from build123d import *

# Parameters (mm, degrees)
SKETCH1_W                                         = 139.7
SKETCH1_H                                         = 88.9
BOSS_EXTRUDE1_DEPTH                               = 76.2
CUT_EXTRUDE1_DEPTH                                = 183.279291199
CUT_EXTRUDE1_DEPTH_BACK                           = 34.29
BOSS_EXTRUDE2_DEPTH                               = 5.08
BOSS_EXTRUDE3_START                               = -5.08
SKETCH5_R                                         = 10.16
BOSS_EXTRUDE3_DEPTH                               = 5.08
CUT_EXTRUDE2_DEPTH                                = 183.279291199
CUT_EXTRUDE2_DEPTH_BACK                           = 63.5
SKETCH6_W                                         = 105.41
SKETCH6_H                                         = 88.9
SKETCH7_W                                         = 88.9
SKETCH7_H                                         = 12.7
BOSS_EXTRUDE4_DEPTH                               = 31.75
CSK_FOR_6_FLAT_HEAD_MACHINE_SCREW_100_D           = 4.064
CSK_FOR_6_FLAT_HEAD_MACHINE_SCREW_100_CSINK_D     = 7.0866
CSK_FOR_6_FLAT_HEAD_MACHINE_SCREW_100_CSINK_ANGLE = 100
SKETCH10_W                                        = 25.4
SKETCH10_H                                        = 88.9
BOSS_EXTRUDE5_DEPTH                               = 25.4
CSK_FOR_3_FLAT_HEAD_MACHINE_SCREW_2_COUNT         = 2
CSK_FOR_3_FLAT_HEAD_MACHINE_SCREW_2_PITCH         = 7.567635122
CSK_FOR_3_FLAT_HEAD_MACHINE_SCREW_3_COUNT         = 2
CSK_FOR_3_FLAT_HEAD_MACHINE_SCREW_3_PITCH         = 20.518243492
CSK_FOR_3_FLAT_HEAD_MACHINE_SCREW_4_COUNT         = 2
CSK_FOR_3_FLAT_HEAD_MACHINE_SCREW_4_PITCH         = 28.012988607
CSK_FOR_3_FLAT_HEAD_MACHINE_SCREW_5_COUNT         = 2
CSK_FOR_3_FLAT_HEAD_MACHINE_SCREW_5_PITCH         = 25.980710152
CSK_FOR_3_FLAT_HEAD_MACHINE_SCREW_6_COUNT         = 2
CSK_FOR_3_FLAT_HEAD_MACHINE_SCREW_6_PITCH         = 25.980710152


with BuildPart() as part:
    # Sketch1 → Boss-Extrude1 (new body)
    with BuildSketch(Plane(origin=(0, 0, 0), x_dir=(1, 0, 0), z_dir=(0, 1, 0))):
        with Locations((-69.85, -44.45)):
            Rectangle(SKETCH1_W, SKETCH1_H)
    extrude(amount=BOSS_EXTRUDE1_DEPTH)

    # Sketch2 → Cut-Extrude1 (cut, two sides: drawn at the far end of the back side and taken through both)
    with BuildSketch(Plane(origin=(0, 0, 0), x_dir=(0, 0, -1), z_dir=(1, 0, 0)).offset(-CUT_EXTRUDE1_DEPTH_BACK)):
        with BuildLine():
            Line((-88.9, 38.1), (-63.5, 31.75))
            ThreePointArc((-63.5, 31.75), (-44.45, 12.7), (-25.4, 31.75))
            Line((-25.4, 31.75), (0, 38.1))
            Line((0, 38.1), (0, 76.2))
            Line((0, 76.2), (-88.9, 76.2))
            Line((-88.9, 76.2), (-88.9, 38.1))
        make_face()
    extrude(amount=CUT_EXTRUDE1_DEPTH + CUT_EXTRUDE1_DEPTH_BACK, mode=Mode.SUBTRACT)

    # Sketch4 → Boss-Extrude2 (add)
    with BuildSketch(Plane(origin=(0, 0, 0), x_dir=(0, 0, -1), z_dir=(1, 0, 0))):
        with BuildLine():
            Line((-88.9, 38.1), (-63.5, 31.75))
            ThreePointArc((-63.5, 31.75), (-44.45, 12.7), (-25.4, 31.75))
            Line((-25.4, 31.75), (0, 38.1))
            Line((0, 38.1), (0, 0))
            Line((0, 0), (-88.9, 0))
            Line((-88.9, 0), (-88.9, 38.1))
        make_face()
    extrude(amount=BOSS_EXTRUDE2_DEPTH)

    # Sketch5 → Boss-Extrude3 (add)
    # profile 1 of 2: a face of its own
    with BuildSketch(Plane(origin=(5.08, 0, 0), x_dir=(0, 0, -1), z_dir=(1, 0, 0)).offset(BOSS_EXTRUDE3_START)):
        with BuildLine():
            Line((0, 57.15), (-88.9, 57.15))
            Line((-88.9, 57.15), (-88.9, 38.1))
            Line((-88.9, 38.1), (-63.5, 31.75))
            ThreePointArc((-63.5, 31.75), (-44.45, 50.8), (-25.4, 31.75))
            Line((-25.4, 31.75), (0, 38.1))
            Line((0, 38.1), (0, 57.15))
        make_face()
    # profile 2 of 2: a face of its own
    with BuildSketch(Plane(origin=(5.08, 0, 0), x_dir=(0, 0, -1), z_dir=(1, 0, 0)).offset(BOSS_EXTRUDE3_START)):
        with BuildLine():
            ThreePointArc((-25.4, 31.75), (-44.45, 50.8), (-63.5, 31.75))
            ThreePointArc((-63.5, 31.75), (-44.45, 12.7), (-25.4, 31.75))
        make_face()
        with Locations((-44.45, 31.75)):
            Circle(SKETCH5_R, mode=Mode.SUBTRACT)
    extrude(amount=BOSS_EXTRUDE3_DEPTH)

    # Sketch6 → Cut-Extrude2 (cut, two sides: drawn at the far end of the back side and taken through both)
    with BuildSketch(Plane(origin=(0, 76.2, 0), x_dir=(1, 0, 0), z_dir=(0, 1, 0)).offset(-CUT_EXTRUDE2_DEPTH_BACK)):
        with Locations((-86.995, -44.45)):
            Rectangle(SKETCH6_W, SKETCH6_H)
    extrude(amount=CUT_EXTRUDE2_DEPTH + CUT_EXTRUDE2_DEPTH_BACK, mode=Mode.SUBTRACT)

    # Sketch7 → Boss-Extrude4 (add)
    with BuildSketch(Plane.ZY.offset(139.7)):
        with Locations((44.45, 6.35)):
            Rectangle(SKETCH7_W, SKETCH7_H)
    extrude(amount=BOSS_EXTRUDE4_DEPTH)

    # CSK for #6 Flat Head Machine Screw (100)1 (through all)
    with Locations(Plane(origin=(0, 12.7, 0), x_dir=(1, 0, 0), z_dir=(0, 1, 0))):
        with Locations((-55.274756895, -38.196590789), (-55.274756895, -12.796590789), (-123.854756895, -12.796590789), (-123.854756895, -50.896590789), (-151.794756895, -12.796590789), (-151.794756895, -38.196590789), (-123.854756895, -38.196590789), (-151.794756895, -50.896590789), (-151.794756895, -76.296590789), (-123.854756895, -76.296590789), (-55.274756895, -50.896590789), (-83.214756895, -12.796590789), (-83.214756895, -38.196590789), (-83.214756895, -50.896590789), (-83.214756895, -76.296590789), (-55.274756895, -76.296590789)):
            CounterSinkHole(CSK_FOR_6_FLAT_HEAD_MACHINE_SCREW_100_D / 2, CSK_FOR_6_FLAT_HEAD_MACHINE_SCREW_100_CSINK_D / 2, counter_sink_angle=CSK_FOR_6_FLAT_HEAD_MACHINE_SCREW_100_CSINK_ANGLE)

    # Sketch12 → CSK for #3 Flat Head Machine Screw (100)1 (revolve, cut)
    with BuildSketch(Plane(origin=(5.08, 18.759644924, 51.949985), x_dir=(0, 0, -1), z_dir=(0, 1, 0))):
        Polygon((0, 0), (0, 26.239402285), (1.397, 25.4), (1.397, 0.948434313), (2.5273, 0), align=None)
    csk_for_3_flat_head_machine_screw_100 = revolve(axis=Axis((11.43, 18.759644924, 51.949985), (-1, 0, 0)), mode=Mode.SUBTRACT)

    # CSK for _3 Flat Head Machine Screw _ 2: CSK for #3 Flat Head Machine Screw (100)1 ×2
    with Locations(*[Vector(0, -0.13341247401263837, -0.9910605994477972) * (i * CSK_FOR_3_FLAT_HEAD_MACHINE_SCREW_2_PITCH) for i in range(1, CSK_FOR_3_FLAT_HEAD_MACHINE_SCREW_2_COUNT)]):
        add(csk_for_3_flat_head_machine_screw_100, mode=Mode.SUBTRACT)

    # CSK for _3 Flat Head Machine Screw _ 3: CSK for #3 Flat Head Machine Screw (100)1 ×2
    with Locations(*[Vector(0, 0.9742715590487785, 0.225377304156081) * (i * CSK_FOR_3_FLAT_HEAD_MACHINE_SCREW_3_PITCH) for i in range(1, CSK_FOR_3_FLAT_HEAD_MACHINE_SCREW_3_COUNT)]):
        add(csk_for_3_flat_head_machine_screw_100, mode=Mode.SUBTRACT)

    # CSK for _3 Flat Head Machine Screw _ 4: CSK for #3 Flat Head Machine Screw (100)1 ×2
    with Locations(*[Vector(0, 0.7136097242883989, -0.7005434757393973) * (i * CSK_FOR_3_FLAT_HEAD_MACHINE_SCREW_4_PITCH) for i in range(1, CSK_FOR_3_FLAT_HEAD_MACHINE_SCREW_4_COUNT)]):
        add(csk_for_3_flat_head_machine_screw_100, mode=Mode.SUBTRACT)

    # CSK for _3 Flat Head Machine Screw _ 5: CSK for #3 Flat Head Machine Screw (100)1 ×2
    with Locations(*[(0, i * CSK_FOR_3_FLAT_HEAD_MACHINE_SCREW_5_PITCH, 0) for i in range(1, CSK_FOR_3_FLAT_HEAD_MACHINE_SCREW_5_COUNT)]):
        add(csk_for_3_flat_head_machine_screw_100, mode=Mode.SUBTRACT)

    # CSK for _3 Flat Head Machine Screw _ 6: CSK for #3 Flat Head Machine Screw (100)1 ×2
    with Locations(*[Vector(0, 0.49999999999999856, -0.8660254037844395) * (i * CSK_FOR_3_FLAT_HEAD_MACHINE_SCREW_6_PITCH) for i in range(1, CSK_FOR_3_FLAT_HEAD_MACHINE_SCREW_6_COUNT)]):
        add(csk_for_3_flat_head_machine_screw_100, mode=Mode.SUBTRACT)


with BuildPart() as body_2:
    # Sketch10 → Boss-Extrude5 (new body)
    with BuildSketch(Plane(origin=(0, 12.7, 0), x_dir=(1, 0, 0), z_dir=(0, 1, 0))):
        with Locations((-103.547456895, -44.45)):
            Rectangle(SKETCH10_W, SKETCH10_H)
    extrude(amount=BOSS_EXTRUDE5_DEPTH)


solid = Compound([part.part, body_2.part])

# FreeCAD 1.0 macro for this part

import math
import FreeCAD as App
import Part
import Sketcher
from FreeCAD import Vector
Q = App.Units.Quantity

doc = App.newDocument("Part")
params = doc.addObject("Spreadsheet::Sheet", "Params")
for row, (alias, value) in enumerate([
    ("sketch1_width", "5.5 in"),
    ("sketch1_height", "3.5 in"),
    ("pad1_length", "3 in"),
    ("sketch2_radius", "0.75 in"),
    ("sketch2_width", "1.5 in"),
    ("sketch2_height", "3.5 in"),
    ("pocket1_length", "183.279291 mm"),
    ("pocket1_length2", "1.35 in"),
    ("sketch3_radius", "0.75 in"),
    ("sketch3_width", "1.5 in"),
    ("sketch3_height", "3.5 in"),
    ("pad2_length", "0.2 in"),
    ("sketch4_diameter", "0.8 in"),
    ("sketch4_radius", "0.75 in"),
    ("sketch4_height", "3.5 in"),
    ("sketch4_width", "0.75 in"),
    ("pad3_length", "0.2 in"),
    ("sketch5_height", "3.5 in"),
    ("sketch5_width", "4.15 in"),
    ("pocket2_length", "183.279291 mm"),
    ("pocket2_length2", "2.5 in"),
    ("sketch6_width", "0.5 in"),
    ("sketch6_height", "3.5 in"),
    ("pad4_length", "1.25 in"),
    ("sketch7_diameter", "0.16 in"),
    ("hole_diameter", "0.16 in"),
    ("hole_csink_diameter", "0.279 in"),
    ("groove_angle", "360 deg"),
    ("linearpattern_pitch", "7.567635 mm"),
    ("linearpattern2_pitch", "20.518243 mm"),
    ("linearpattern3_pitch", "28.012989 mm"),
    ("linearpattern4_pitch", "25.98071 mm"),
    ("linearpattern5_pitch", "25.98071 mm"),
    ("sketch9_width", "1 in"),
    ("sketch9_height", "3.5 in"),
    ("pad5_length", "1 in"),
], start=1):
    params.set(f"A{row}", alias)
    params.set(f"B{row}", "=" + value)
    params.setAlias(f"B{row}", alias)

body = doc.addObject("PartDesign::Body", "Body")

sketch1 = doc.addObject("Sketcher::SketchObject", "Sketch")
body.addObject(sketch1)
sketch1.AttachmentSupport = (doc.XZ_Plane, [""])
sketch1.MapMode = "FlatFace"
sketch1.addGeometry([
    Part.LineSegment(Vector(-139.7, 0, 0), Vector(-139.7, 88.9, 0)),
    Part.LineSegment(Vector(-139.7, 88.9, 0), Vector(0, 88.9, 0)),
    Part.LineSegment(Vector(0, 88.9, 0), Vector(0, 0, 0)),
    Part.LineSegment(Vector(0, 0, 0), Vector(-139.7, 0, 0)),
], False)
sketch1.addConstraint([
    Sketcher.Constraint("Coincident", 0, 2, 1, 1),
    Sketcher.Constraint("Coincident", 1, 2, 2, 1),
    Sketcher.Constraint("Coincident", 2, 2, 3, 1),
    Sketcher.Constraint("Coincident", 3, 2, 0, 1),
    Sketcher.Constraint("Vertical", 0),
    Sketcher.Constraint("Horizontal", 1),
    Sketcher.Constraint("Vertical", 2),
    Sketcher.Constraint("Horizontal", 3),
    Sketcher.Constraint("Coincident", 2, 2, -1, 1),
    Sketcher.Constraint("DistanceX", 1, 1, 1, 2, Q("5.5 in")),
    Sketcher.Constraint("DistanceY", 0, 1, 0, 2, Q("3.5 in")),
])
sketch1.setExpression("Constraints[9]", "Params.sketch1_width")
sketch1.setExpression("Constraints[10]", "Params.sketch1_height")
pad1 = doc.addObject("PartDesign::Pad", "Pad")
body.addObject(pad1)
pad1.Profile = sketch1
pad1.setExpression("Length", "Params.pad1_length")
pad1.Reversed = True

sketch2 = doc.addObject("Sketcher::SketchObject", "Sketch001")
body.addObject(sketch2)
sketch2.AttachmentSupport = (doc.YZ_Plane, [""])
sketch2.MapMode = "FlatFace"
sketch2.addGeometry([
    Part.LineSegment(Vector(38.1, 88.9, 0), Vector(31.75, 63.5, 0)),
    Part.ArcOfCircle(Part.Circle(Vector(31.75, 44.45, 0), Vector(0, 0, 1), 19.05), math.radians(90), math.radians(270)),
    Part.LineSegment(Vector(31.75, 25.4, 0), Vector(38.1, 0, 0)),
    Part.LineSegment(Vector(38.1, 0, 0), Vector(76.2, 0, 0)),
    Part.LineSegment(Vector(76.2, 0, 0), Vector(76.2, 88.9, 0)),
    Part.LineSegment(Vector(76.2, 88.9, 0), Vector(38.1, 88.9, 0)),
], False)
sketch2.addConstraint([
    Sketcher.Constraint("Coincident", 0, 2, 1, 1),
    Sketcher.Constraint("Coincident", 1, 2, 2, 1),
    Sketcher.Constraint("Coincident", 2, 2, 3, 1),
    Sketcher.Constraint("Coincident", 3, 2, 4, 1),
    Sketcher.Constraint("Coincident", 4, 2, 5, 1),
    Sketcher.Constraint("Coincident", 5, 2, 0, 1),
    Sketcher.Constraint("Horizontal", 3),
    Sketcher.Constraint("Vertical", 4),
    Sketcher.Constraint("Horizontal", 5),
    Sketcher.Constraint("PointOnObject", 2, 2, -1),
    Sketcher.Constraint("Vertical", 1, 3, 0, 2),
    Sketcher.Constraint("Vertical", 0, 2, 1, 2),
    Sketcher.Constraint("Vertical", 2, 2, 5, 2),
    Sketcher.Constraint("Equal", 0, 2),
    Sketcher.Constraint("Radius", 1, Q("0.75 in")),
    Sketcher.Constraint("DistanceX", 3, 1, 3, 2, Q("1.5 in")),
    Sketcher.Constraint("DistanceY", 4, 1, 4, 2, Q("3.5 in")),
    Sketcher.Constraint("DistanceX", -1, 1, 3, 2, Q("3 in")),
    Sketcher.Constraint("DistanceX", -1, 1, 1, 3, Q("1.25 in")),
])
sketch2.setExpression("Constraints[14]", "Params.sketch2_radius")
sketch2.setExpression("Constraints[15]", "Params.sketch2_width")
sketch2.setExpression("Constraints[16]", "Params.sketch2_height")
pocket1 = doc.addObject("PartDesign::Pocket", "Pocket")
body.addObject(pocket1)
pocket1.Profile = sketch2
pocket1.Type = "TwoLengths"
pocket1.setExpression("Length", "Params.pocket1_length")
pocket1.setExpression("Length2", "Params.pocket1_length2")
pocket1.Reversed = True

sketch3 = doc.addObject("Sketcher::SketchObject", "Sketch002")
body.addObject(sketch3)
sketch3.AttachmentSupport = (doc.YZ_Plane, [""])
sketch3.MapMode = "FlatFace"
sketch3.addGeometry([
    Part.LineSegment(Vector(31.75, 63.5, 0), Vector(38.1, 88.9, 0)),
    Part.LineSegment(Vector(38.1, 88.9, 0), Vector(0, 88.9, 0)),
    Part.LineSegment(Vector(0, 88.9, 0), Vector(0, 0, 0)),
    Part.LineSegment(Vector(0, 0, 0), Vector(38.1, 0, 0)),
    Part.LineSegment(Vector(38.1, 0, 0), Vector(31.75, 25.4, 0)),
    Part.ArcOfCircle(Part.Circle(Vector(31.75, 44.45, 0), Vector(0, 0, 1), 19.05), math.radians(90), math.radians(270)),
], False)
sketch3.addConstraint([
    Sketcher.Constraint("Coincident", 0, 2, 1, 1),
    Sketcher.Constraint("Coincident", 1, 2, 2, 1),
    Sketcher.Constraint("Coincident", 2, 2, 3, 1),
    Sketcher.Constraint("Coincident", 3, 2, 4, 1),
    Sketcher.Constraint("Coincident", 4, 2, 5, 2),
    Sketcher.Constraint("Coincident", 5, 1, 0, 1),
    Sketcher.Constraint("Horizontal", 1),
    Sketcher.Constraint("Vertical", 2),
    Sketcher.Constraint("Horizontal", 3),
    Sketcher.Constraint("Coincident", 2, 2, -1, 1),
    Sketcher.Constraint("Vertical", 0, 2, 3, 2),
    Sketcher.Constraint("Vertical", 5, 3, 4, 2),
    Sketcher.Constraint("Vertical", 4, 2, 5, 1),
    Sketcher.Constraint("Equal", 0, 4),
    Sketcher.Constraint("Radius", 5, Q("0.75 in")),
    Sketcher.Constraint("DistanceX", 1, 2, 1, 1, Q("1.5 in")),
    Sketcher.Constraint("DistanceY", 2, 2, 2, 1, Q("3.5 in")),
    Sketcher.Constraint("DistanceX", -1, 1, 5, 3, Q("1.25 in")),
])
sketch3.setExpression("Constraints[14]", "Params.sketch3_radius")
sketch3.setExpression("Constraints[15]", "Params.sketch3_width")
sketch3.setExpression("Constraints[16]", "Params.sketch3_height")
pad2 = doc.addObject("PartDesign::Pad", "Pad001")
body.addObject(pad2)
pad2.Profile = sketch3
pad2.setExpression("Length", "Params.pad2_length")

sketch4 = doc.addObject("Sketcher::SketchObject", "Sketch003")
body.addObject(sketch4)
sketch4.AttachmentSupport = (doc.YZ_Plane, [""])
sketch4.MapMode = "FlatFace"
sketch4.addGeometry([
    Part.LineSegment(Vector(57.15, 0, 0), Vector(57.15, 88.9, 0)),
    Part.LineSegment(Vector(57.15, 88.9, 0), Vector(38.1, 88.9, 0)),
    Part.LineSegment(Vector(38.1, 88.9, 0), Vector(31.75, 63.5, 0)),
    Part.ArcOfCircle(Part.Circle(Vector(31.75, 44.45, 0), Vector(0, 0, 1), 19.05), math.radians(90), math.radians(270)),
    Part.LineSegment(Vector(31.75, 25.4, 0), Vector(38.1, 0, 0)),
    Part.LineSegment(Vector(38.1, 0, 0), Vector(57.15, 0, 0)),
    Part.Circle(Vector(31.75, 44.45, 0), Vector(0, 0, 1), 10.16),
], False)
sketch4.addConstraint([
    Sketcher.Constraint("Coincident", 0, 2, 1, 1),
    Sketcher.Constraint("Coincident", 1, 2, 2, 1),
    Sketcher.Constraint("Coincident", 2, 2, 3, 1),
    Sketcher.Constraint("Coincident", 3, 2, 4, 1),
    Sketcher.Constraint("Coincident", 4, 2, 5, 1),
    Sketcher.Constraint("Coincident", 5, 2, 0, 1),
    Sketcher.Constraint("Vertical", 0),
    Sketcher.Constraint("Horizontal", 1),
    Sketcher.Constraint("Horizontal", 5),
    Sketcher.Constraint("Coincident", 6, 3, 3, 3),
    Sketcher.Constraint("PointOnObject", 4, 2, -1),
    Sketcher.Constraint("Vertical", 6, 3, 2, 2),
    Sketcher.Constraint("Vertical", 2, 2, 3, 2),
    Sketcher.Constraint("Vertical", 1, 2, 4, 2),
    Sketcher.Constraint("Equal", 2, 4),
    Sketcher.Constraint("Diameter", 6, Q("0.8 in")),
    Sketcher.Constraint("Radius", 3, Q("0.75 in")),
    Sketcher.Constraint("DistanceY", 0, 1, 0, 2, Q("3.5 in")),
    Sketcher.Constraint("DistanceX", 3, 3, 0, 2, Q("1 in")),
    Sketcher.Constraint("DistanceX", 1, 2, 1, 1, Q("0.75 in")),
    Sketcher.Constraint("DistanceX", -1, 1, 1, 2, Q("1.5 in")),
])
sketch4.setExpression("Constraints[15]", "Params.sketch4_diameter")
sketch4.setExpression("Constraints[16]", "Params.sketch4_radius")
sketch4.setExpression("Constraints[17]", "Params.sketch4_height")
sketch4.setExpression("Constraints[19]", "Params.sketch4_width")
pad3 = doc.addObject("PartDesign::Pad", "Pad002")
body.addObject(pad3)
pad3.Profile = sketch4
pad3.setExpression("Length", "Params.pad3_length")

sketch5 = doc.addObject("Sketcher::SketchObject", "Sketch004")
body.addObject(sketch5)
sketch5.AttachmentSupport = (doc.XZ_Plane, [""])
sketch5.MapMode = "FlatFace"
sketch5.AttachmentOffset = App.Placement(Vector(0, 0, -3 * 25.4), App.Rotation())
sketch5.addGeometry([
    Part.LineSegment(Vector(-139.7, 0, 0), Vector(-139.7, 88.9, 0)),
    Part.LineSegment(Vector(-139.7, 88.9, 0), Vector(-34.29, 88.9, 0)),
    Part.LineSegment(Vector(-34.29, 88.9, 0), Vector(-34.29, 0, 0)),
    Part.LineSegment(Vector(-34.29, 0, 0), Vector(-139.7, 0, 0)),
], False)
sketch5.addConstraint([
    Sketcher.Constraint("Coincident", 0, 2, 1, 1),
    Sketcher.Constraint("Coincident", 1, 2, 2, 1),
    Sketcher.Constraint("Coincident", 2, 2, 3, 1),
    Sketcher.Constraint("Coincident", 3, 2, 0, 1),
    Sketcher.Constraint("Vertical", 0),
    Sketcher.Constraint("Horizontal", 1),
    Sketcher.Constraint("Vertical", 2),
    Sketcher.Constraint("Horizontal", 3),
    Sketcher.Constraint("PointOnObject", 2, 2, -1),
    Sketcher.Constraint("DistanceY", 0, 1, 0, 2, Q("3.5 in")),
    Sketcher.Constraint("DistanceX", 1, 1, 1, 2, Q("4.15 in")),
    Sketcher.Constraint("DistanceX", 0, 2, -1, 1, Q("5.5 in")),
])
sketch5.setExpression("Constraints[9]", "Params.sketch5_height")
sketch5.setExpression("Constraints[10]", "Params.sketch5_width")
pocket2 = doc.addObject("PartDesign::Pocket", "Pocket001")
body.addObject(pocket2)
pocket2.Profile = sketch5
pocket2.Type = "TwoLengths"
pocket2.setExpression("Length", "Params.pocket2_length")
pocket2.setExpression("Length2", "Params.pocket2_length2")

sketch6 = doc.addObject("Sketcher::SketchObject", "Sketch005")
body.addObject(sketch6)
sketch6.AttachmentSupport = (doc.YZ_Plane, [""])
sketch6.MapMode = "FlatFace"
sketch6.AttachmentOffset = App.Placement(Vector(0, 0, -5.5 * 25.4), App.Rotation())
sketch6.addGeometry([
    Part.LineSegment(Vector(12.7, 0, 0), Vector(0, 0, 0)),
    Part.LineSegment(Vector(0, 0, 0), Vector(0, 88.9, 0)),
    Part.LineSegment(Vector(0, 88.9, 0), Vector(12.7, 88.9, 0)),
    Part.LineSegment(Vector(12.7, 88.9, 0), Vector(12.7, 0, 0)),
], False)
sketch6.addConstraint([
    Sketcher.Constraint("Coincident", 0, 2, 1, 1),
    Sketcher.Constraint("Coincident", 1, 2, 2, 1),
    Sketcher.Constraint("Coincident", 2, 2, 3, 1),
    Sketcher.Constraint("Coincident", 3, 2, 0, 1),
    Sketcher.Constraint("Horizontal", 0),
    Sketcher.Constraint("Vertical", 1),
    Sketcher.Constraint("Horizontal", 2),
    Sketcher.Constraint("Vertical", 3),
    Sketcher.Constraint("Coincident", 0, 2, -1, 1),
    Sketcher.Constraint("DistanceX", 0, 2, 0, 1, Q("0.5 in")),
    Sketcher.Constraint("DistanceY", 1, 1, 1, 2, Q("3.5 in")),
])
sketch6.setExpression("Constraints[9]", "Params.sketch6_width")
sketch6.setExpression("Constraints[10]", "Params.sketch6_height")
pad4 = doc.addObject("PartDesign::Pad", "Pad003")
body.addObject(pad4)
pad4.Profile = sketch6
pad4.setExpression("Length", "Params.pad4_length")
pad4.Reversed = True

sketch7 = doc.addObject("Sketcher::SketchObject", "Sketch006")
body.addObject(sketch7)
sketch7.AttachmentSupport = (doc.XZ_Plane, [""])
sketch7.MapMode = "FlatFace"
sketch7.AttachmentOffset = App.Placement(Vector(0, 0, -0.5 * 25.4), App.Rotation())
sketch7.addGeometry([
    Part.Circle(Vector(-55.274757, 38.196591, 0), Vector(0, 0, 1), 2.032),
    Part.Circle(Vector(-55.274757, 12.796591, 0), Vector(0, 0, 1), 2.032),
    Part.Circle(Vector(-123.854757, 12.796591, 0), Vector(0, 0, 1), 2.032),
    Part.Circle(Vector(-123.854757, 50.896591, 0), Vector(0, 0, 1), 2.032),
    Part.Circle(Vector(-151.794757, 12.796591, 0), Vector(0, 0, 1), 2.032),
    Part.Circle(Vector(-151.794757, 38.196591, 0), Vector(0, 0, 1), 2.032),
    Part.Circle(Vector(-123.854757, 38.196591, 0), Vector(0, 0, 1), 2.032),
    Part.Circle(Vector(-151.794757, 50.896591, 0), Vector(0, 0, 1), 2.032),
    Part.Circle(Vector(-151.794757, 76.296591, 0), Vector(0, 0, 1), 2.032),
    Part.Circle(Vector(-123.854757, 76.296591, 0), Vector(0, 0, 1), 2.032),
    Part.Circle(Vector(-55.274757, 50.896591, 0), Vector(0, 0, 1), 2.032),
    Part.Circle(Vector(-83.214757, 12.796591, 0), Vector(0, 0, 1), 2.032),
    Part.Circle(Vector(-83.214757, 38.196591, 0), Vector(0, 0, 1), 2.032),
    Part.Circle(Vector(-83.214757, 50.896591, 0), Vector(0, 0, 1), 2.032),
    Part.Circle(Vector(-83.214757, 76.296591, 0), Vector(0, 0, 1), 2.032),
    Part.Circle(Vector(-55.274757, 76.296591, 0), Vector(0, 0, 1), 2.032),
], False)
sketch7.addConstraint([
    Sketcher.Constraint("Equal", 0, 1),
    Sketcher.Constraint("Equal", 1, 2),
    Sketcher.Constraint("Equal", 2, 3),
    Sketcher.Constraint("Equal", 3, 4),
    Sketcher.Constraint("Equal", 4, 5),
    Sketcher.Constraint("Equal", 5, 6),
    Sketcher.Constraint("Equal", 6, 7),
    Sketcher.Constraint("Equal", 7, 8),
    Sketcher.Constraint("Equal", 8, 9),
    Sketcher.Constraint("Equal", 9, 10),
    Sketcher.Constraint("Equal", 10, 11),
    Sketcher.Constraint("Equal", 11, 12),
    Sketcher.Constraint("Equal", 12, 13),
    Sketcher.Constraint("Equal", 13, 14),
    Sketcher.Constraint("Equal", 14, 15),
    Sketcher.Constraint("Horizontal", 1, 3, 2, 3),
    Sketcher.Constraint("Horizontal", 2, 3, 4, 3),
    Sketcher.Constraint("Horizontal", 0, 3, 5, 3),
    Sketcher.Constraint("Horizontal", 5, 3, 6, 3),
    Sketcher.Constraint("Horizontal", 3, 3, 7, 3),
    Sketcher.Constraint("Horizontal", 8, 3, 9, 3),
    Sketcher.Constraint("Horizontal", 7, 3, 10, 3),
    Sketcher.Constraint("Horizontal", 4, 3, 11, 3),
    Sketcher.Constraint("Horizontal", 6, 3, 12, 3),
    Sketcher.Constraint("Horizontal", 10, 3, 13, 3),
    Sketcher.Constraint("Horizontal", 9, 3, 14, 3),
    Sketcher.Constraint("Horizontal", 14, 3, 15, 3),
    Sketcher.Constraint("Vertical", 0, 3, 1, 3),
    Sketcher.Constraint("Vertical", 2, 3, 3, 3),
    Sketcher.Constraint("Vertical", 4, 3, 5, 3),
    Sketcher.Constraint("Vertical", 3, 3, 6, 3),
    Sketcher.Constraint("Vertical", 5, 3, 7, 3),
    Sketcher.Constraint("Vertical", 7, 3, 8, 3),
    Sketcher.Constraint("Vertical", 6, 3, 9, 3),
    Sketcher.Constraint("Vertical", 1, 3, 10, 3),
    Sketcher.Constraint("Vertical", 11, 3, 12, 3),
    Sketcher.Constraint("Vertical", 12, 3, 13, 3),
    Sketcher.Constraint("Vertical", 13, 3, 14, 3),
    Sketcher.Constraint("Vertical", 10, 3, 15, 3),
    Sketcher.Constraint("Diameter", 0, Q("0.16 in")),
    Sketcher.Constraint("DistanceY", 1, 3, 0, 3, Q("1 in")),
    Sketcher.Constraint("DistanceY", 7, 3, 8, 3, Q("1 in")),
    Sketcher.Constraint("DistanceX", 2, 3, 1, 3, Q("2.7 in")),
    Sketcher.Constraint("DistanceY", 2, 3, 3, 3, Q("1.5 in")),
    Sketcher.Constraint("DistanceX", 4, 3, 2, 3, Q("1.1 in")),
    Sketcher.Constraint("DistanceX", 11, 3, 1, 3, Q("1.1 in")),
    Sketcher.Constraint("DistanceY", -1, 1, 0, 3, Q("38.196591 mm")),
    Sketcher.Constraint("DistanceX", 0, 3, -1, 1, Q("55.274757 mm")),
])
sketch7.setExpression("Constraints[39]", "Params.sketch7_diameter")
doc.recompute()
hole = doc.addObject("PartDesign::Hole", "Hole")
body.addObject(hole)
hole.Profile = sketch7
hole.ThreadType = "None"
hole.setExpression("Diameter", "Params.hole_diameter")
hole.DepthType = "ThroughAll"
hole.HoleCutType = "Countersink"
hole.setExpression("HoleCutDiameter", "Params.hole_csink_diameter")
hole.HoleCutCountersinkAngle = 100
hole.Reversed = True

sketch8 = doc.addObject("Sketcher::SketchObject", "Sketch007")
body.addObject(sketch8)
sketch8.AttachmentSupport = (doc.XZ_Plane, [""])
sketch8.MapMode = "FlatFace"
sketch8.AttachmentOffset = App.Placement(Vector(0, 0, -18.759645), App.Rotation())
sketch8.addGeometry([
    Part.LineSegment(Vector(-21.159402, 51.949985, 0), Vector(5.08, 51.949985, 0)),
    Part.LineSegment(Vector(5.08, 51.949985, 0), Vector(5.08, 49.422685, 0)),
    Part.LineSegment(Vector(5.08, 49.422685, 0), Vector(4.131566, 50.552985, 0)),
    Part.LineSegment(Vector(4.131566, 50.552985, 0), Vector(-20.32, 50.552985, 0)),
    Part.LineSegment(Vector(-20.32, 50.552985, 0), Vector(-21.159402, 51.949985, 0)),
], False)
sketch8.addGeometry(Part.LineSegment(Vector(5.08, 51.949985, 0), Vector(-21.159402, 51.949985, 0)), True)
sketch8.addConstraint([
    Sketcher.Constraint("Coincident", 0, 2, 1, 1),
    Sketcher.Constraint("Coincident", 1, 2, 2, 1),
    Sketcher.Constraint("Coincident", 2, 2, 3, 1),
    Sketcher.Constraint("Coincident", 3, 2, 4, 1),
    Sketcher.Constraint("Coincident", 4, 2, 0, 1),
    Sketcher.Constraint("Horizontal", 0),
    Sketcher.Constraint("Vertical", 1),
    Sketcher.Constraint("Horizontal", 3),
    Sketcher.Constraint("Horizontal", 5),
    Sketcher.Constraint("Coincident", 5, 1, 0, 2),
    Sketcher.Constraint("Equal", 0, 5),
    Sketcher.Constraint("Angle", 2, Q("130 deg")),
    Sketcher.Constraint("Angle", 4, Q("121 deg")),
    Sketcher.Constraint("DistanceX", 3, 2, 1, 2, Q("1 in")),
    Sketcher.Constraint("DistanceX", -1, 1, 0, 2, Q("0.2 in")),
    Sketcher.Constraint("DistanceY", 1, 2, 1, 1, Q("0.0995 in")),
    Sketcher.Constraint("DistanceY", 2, 2, 0, 2, Q("0.055 in")),
    Sketcher.Constraint("DistanceY", -1, 1, 0, 2, Q("51.949985 mm")),
])
groove = doc.addObject("PartDesign::Groove", "Groove")
body.addObject(groove)
groove.Profile = sketch8
groove.ReferenceAxis = (sketch8, ["Axis0"])
groove.setExpression("Angle", "Params.groove_angle")
doc.recompute()

datumline = doc.addObject("PartDesign::Line", "DatumLine")
body.addObject(datumline)
datumline.Placement = App.Placement(Vector(0, 0, 0), App.Rotation(Vector(0, 0, 1), Vector(0, -0.133412474, -0.991060599)))
linearpattern = doc.addObject("PartDesign::LinearPattern", "LinearPattern")
body.addObject(linearpattern)
linearpattern.Originals = [groove]
linearpattern.Direction = (datumline, [""])
linearpattern.Mode = "offset"
linearpattern.setExpression("Offset", "Params.linearpattern_pitch")
linearpattern.Occurrences = 2
body.Tip = linearpattern
doc.recompute()

datumline2 = doc.addObject("PartDesign::Line", "DatumLine001")
body.addObject(datumline2)
datumline2.Placement = App.Placement(Vector(0, 0, 0), App.Rotation(Vector(0, 0, 1), Vector(0, 0.974271559, 0.225377304)))
linearpattern2 = doc.addObject("PartDesign::LinearPattern", "LinearPattern001")
body.addObject(linearpattern2)
linearpattern2.Originals = [groove]
linearpattern2.Direction = (datumline2, [""])
linearpattern2.Mode = "offset"
linearpattern2.setExpression("Offset", "Params.linearpattern2_pitch")
linearpattern2.Occurrences = 2
body.Tip = linearpattern2
doc.recompute()

datumline3 = doc.addObject("PartDesign::Line", "DatumLine002")
body.addObject(datumline3)
datumline3.Placement = App.Placement(Vector(0, 0, 0), App.Rotation(Vector(0, 0, 1), Vector(0, 0.713609724, -0.700543476)))
linearpattern3 = doc.addObject("PartDesign::LinearPattern", "LinearPattern002")
body.addObject(linearpattern3)
linearpattern3.Originals = [groove]
linearpattern3.Direction = (datumline3, [""])
linearpattern3.Mode = "offset"
linearpattern3.setExpression("Offset", "Params.linearpattern3_pitch")
linearpattern3.Occurrences = 2
body.Tip = linearpattern3
doc.recompute()

linearpattern4 = doc.addObject("PartDesign::LinearPattern", "LinearPattern003")
body.addObject(linearpattern4)
linearpattern4.Originals = [groove]
linearpattern4.Direction = (doc.Y_Axis, [""])
linearpattern4.Mode = "offset"
linearpattern4.setExpression("Offset", "Params.linearpattern4_pitch")
linearpattern4.Occurrences = 2
body.Tip = linearpattern4
doc.recompute()

datumline4 = doc.addObject("PartDesign::Line", "DatumLine003")
body.addObject(datumline4)
datumline4.Placement = App.Placement(Vector(0, 0, 0), App.Rotation(Vector(0, 0, 1), Vector(0, 0.5, -0.866025404)))
linearpattern5 = doc.addObject("PartDesign::LinearPattern", "LinearPattern004")
body.addObject(linearpattern5)
linearpattern5.Originals = [groove]
linearpattern5.Direction = (datumline4, [""])
linearpattern5.Mode = "offset"
linearpattern5.setExpression("Offset", "Params.linearpattern5_pitch")
linearpattern5.Occurrences = 2
body.Tip = linearpattern5
body2 = doc.addObject("PartDesign::Body", "Body001")

sketch9 = doc.addObject("Sketcher::SketchObject", "Sketch008")
body2.addObject(sketch9)
sketch9.AttachmentSupport = (doc.getObject("XZ_Plane001"), [""])
sketch9.MapMode = "FlatFace"
sketch9.AttachmentOffset = App.Placement(Vector(0, 0, -0.5 * 25.4), App.Rotation())
sketch9.addGeometry([
    Part.LineSegment(Vector(-116.247457, 0, 0), Vector(-116.247457, 88.9, 0)),
    Part.LineSegment(Vector(-116.247457, 88.9, 0), Vector(-90.847457, 88.9, 0)),
    Part.LineSegment(Vector(-90.847457, 88.9, 0), Vector(-90.847457, 0, 0)),
    Part.LineSegment(Vector(-90.847457, 0, 0), Vector(-116.247457, 0, 0)),
], False)
sketch9.addConstraint([
    Sketcher.Constraint("Coincident", 0, 2, 1, 1),
    Sketcher.Constraint("Coincident", 1, 2, 2, 1),
    Sketcher.Constraint("Coincident", 2, 2, 3, 1),
    Sketcher.Constraint("Coincident", 3, 2, 0, 1),
    Sketcher.Constraint("Vertical", 0),
    Sketcher.Constraint("Horizontal", 1),
    Sketcher.Constraint("Vertical", 2),
    Sketcher.Constraint("Horizontal", 3),
    Sketcher.Constraint("PointOnObject", 2, 2, -1),
    Sketcher.Constraint("DistanceX", 1, 1, 1, 2, Q("1 in")),
    Sketcher.Constraint("DistanceY", 0, 1, 0, 2, Q("3.5 in")),
    Sketcher.Constraint("DistanceX", 0, 2, -1, 1, Q("116.247457 mm")),
])
sketch9.setExpression("Constraints[9]", "Params.sketch9_width")
sketch9.setExpression("Constraints[10]", "Params.sketch9_height")
pad5 = doc.addObject("PartDesign::Pad", "Pad004")
body2.addObject(pad5)
pad5.Profile = sketch9
pad5.setExpression("Length", "Params.pad5_length")
pad5.Reversed = True

doc.recompute()
